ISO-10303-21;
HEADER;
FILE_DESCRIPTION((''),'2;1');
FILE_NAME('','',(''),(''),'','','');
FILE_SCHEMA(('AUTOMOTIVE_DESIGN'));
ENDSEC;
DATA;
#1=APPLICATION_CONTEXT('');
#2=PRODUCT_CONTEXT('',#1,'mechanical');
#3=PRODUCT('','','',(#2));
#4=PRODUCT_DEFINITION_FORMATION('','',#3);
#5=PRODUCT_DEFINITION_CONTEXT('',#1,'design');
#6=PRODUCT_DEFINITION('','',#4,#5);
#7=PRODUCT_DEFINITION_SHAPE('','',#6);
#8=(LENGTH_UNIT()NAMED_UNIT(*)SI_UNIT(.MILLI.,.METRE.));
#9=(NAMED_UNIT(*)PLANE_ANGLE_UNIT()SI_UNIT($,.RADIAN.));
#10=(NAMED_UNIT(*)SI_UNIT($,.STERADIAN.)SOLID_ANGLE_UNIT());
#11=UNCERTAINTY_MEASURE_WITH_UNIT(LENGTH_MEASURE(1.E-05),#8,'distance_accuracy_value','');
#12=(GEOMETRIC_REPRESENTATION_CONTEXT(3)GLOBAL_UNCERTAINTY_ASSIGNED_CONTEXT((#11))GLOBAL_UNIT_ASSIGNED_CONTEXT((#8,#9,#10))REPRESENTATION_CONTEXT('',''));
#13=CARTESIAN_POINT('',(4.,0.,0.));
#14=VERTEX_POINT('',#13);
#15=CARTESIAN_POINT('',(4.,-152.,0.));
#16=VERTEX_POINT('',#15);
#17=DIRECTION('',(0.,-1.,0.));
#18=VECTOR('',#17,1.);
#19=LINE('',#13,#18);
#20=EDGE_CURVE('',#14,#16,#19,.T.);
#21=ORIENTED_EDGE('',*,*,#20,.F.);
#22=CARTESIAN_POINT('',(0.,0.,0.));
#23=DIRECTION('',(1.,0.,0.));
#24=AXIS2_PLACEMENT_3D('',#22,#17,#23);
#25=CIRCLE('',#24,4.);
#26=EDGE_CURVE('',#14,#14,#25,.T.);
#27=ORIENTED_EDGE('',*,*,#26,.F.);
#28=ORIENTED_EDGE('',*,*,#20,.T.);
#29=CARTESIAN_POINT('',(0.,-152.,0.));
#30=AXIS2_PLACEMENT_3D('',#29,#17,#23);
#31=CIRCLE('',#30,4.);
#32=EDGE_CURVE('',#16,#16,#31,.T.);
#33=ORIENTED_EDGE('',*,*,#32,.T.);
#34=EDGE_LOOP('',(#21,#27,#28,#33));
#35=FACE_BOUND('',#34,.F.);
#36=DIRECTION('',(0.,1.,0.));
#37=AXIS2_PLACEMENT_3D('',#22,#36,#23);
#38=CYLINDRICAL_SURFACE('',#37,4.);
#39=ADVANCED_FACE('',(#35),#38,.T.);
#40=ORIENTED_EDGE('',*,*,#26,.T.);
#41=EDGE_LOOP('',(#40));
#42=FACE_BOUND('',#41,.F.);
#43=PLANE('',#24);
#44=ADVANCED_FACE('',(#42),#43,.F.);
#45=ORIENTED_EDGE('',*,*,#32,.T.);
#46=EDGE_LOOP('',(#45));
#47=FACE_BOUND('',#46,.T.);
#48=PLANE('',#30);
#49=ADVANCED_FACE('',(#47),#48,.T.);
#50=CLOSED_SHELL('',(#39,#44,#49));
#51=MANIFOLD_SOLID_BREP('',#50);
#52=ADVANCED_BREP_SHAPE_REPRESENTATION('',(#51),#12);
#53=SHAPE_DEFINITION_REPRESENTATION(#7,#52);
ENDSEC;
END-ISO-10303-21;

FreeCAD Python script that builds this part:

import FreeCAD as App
import Part
import Sketcher

V = App.Vector
Q = App.Units.Quantity

doc = App.newDocument("Part")
body = doc.addObject("PartDesign::Body", "Body")

# Sketch on XZ plane
sketch1 = body.newObject("Sketcher::SketchObject", "Sketch")
sketch1.AttachmentSupport = (doc.getObject("XZ_Plane"), [""])
sketch1.MapMode = "FlatFace"
sketch1.addGeometry(Part.Circle(V(0, 0, 0), V(0, 0, 1), 4), False)
sketch1.addConstraint([
    Sketcher.Constraint("Coincident", 0, 3, -1, 1),
    Sketcher.Constraint("Diameter", 0, Q("8 mm")),
])
pad1 = body.newObject("PartDesign::Pad", "Pad")
pad1.Profile = sketch1
pad1.Length = 152

doc.recompute()
